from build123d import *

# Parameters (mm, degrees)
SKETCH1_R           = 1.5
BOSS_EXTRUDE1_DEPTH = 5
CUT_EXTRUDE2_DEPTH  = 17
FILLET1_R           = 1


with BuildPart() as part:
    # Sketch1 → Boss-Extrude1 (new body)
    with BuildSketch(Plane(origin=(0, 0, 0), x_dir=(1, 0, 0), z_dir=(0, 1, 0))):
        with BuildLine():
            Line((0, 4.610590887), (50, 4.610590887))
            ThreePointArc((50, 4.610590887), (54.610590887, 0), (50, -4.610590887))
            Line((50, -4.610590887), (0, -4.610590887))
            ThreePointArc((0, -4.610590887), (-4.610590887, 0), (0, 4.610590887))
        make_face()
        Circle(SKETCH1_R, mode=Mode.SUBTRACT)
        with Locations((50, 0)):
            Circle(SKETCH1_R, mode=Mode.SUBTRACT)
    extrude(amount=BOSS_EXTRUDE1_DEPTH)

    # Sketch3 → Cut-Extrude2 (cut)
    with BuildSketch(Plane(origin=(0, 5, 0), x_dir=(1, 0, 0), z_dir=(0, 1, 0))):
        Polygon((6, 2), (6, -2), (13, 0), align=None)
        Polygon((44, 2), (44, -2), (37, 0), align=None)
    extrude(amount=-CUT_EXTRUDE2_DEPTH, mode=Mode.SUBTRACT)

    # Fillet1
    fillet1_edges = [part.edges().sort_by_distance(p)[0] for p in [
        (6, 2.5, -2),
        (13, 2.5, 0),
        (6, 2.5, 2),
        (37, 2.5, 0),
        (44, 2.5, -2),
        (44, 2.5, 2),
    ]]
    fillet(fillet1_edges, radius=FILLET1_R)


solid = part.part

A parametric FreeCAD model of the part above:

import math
import FreeCAD as App
import Part
import Sketcher

V = App.Vector
Q = App.Units.Quantity


def edges_at(feature, points):
    """Names of the edges that pass closest to the given points."""
    edges = feature.Shape.Edges
    near = lambda p: min(range(len(edges)), key=lambda i: edges[i].distToShape(Part.Vertex(*p))[0])
    return sorted({f"Edge{near(p) + 1}" for p in points})

doc = App.newDocument("Part")
body = doc.addObject("PartDesign::Body", "Body")

sketch1 = body.newObject("Sketcher::SketchObject", "Sketch")
sketch1.AttachmentSupport = (doc.getObject("XZ_Plane"), [""])
sketch1.MapMode = "FlatFace"
sketch1.addGeometry([
    Part.LineSegment(V(50, -4.6, 0), V(0, -4.6, 0)),
    Part.ArcOfCircle(Part.Circle(V(0, 0, 0), V(0, 0, 1), 4.6), math.radians(90), math.radians(270)),
    Part.LineSegment(V(0, 4.6, 0), V(50, 4.6, 0)),
    Part.ArcOfCircle(Part.Circle(V(50, 0, 0), V(0, 0, 1), 4.6), math.radians(-90), math.radians(90)),
    Part.Circle(V(50, 0, 0), V(0, 0, 1), 1.5),
    Part.Circle(V(0, 0, 0), V(0, 0, 1), 1.5),
], False)
sketch1.addConstraint([
    Sketcher.Constraint("Tangent", 0, 2, 1, 2),
    Sketcher.Constraint("Tangent", 1, 1, 2, 1),
    Sketcher.Constraint("Tangent", 2, 2, 3, 2),
    Sketcher.Constraint("Tangent", 3, 1, 0, 1),
    Sketcher.Constraint("Horizontal", 0),
    Sketcher.Constraint("Horizontal", 2),
    Sketcher.Constraint("Coincident", 1, 3, -1, 1),
    Sketcher.Constraint("Coincident", 5, 3, -1, 1),
    Sketcher.Constraint("Coincident", 4, 3, 3, 3),
    Sketcher.Constraint("Equal", 4, 5),
    Sketcher.Constraint("Diameter", 4, Q("3 mm")),
    Sketcher.Constraint("DistanceX", 0, 2, 0, 1, Q("50 mm")),
    Sketcher.Constraint("Radius", 1, Q("4.610591 mm")),
])
pad1 = body.newObject("PartDesign::Pad", "Pad")
pad1.Profile = sketch1
pad1.Length = 5
pad1.Reversed = True

sketch2 = body.newObject("Sketcher::SketchObject", "Sketch001")
sketch2.AttachmentSupport = (doc.getObject("XZ_Plane"), [""])
sketch2.MapMode = "FlatFace"
sketch2.AttachmentOffset = App.Placement(V(0, 0, -5), App.Rotation())
sketch2.addGeometry([
    Part.LineSegment(V(6, -2, 0), V(6, 2, 0)),
    Part.LineSegment(V(6, 2, 0), V(13, 0, 0)),
    Part.LineSegment(V(13, 0, 0), V(6, -2, 0)),
    Part.LineSegment(V(44, 2, 0), V(44, -2, 0)),
    Part.LineSegment(V(44, -2, 0), V(37, 0, 0)),
    Part.LineSegment(V(37, 0, 0), V(44, 2, 0)),
], False)
sketch2.addConstraint([
    Sketcher.Constraint("Coincident", 0, 2, 1, 1),
    Sketcher.Constraint("Coincident", 1, 2, 2, 1),
    Sketcher.Constraint("Coincident", 2, 2, 0, 1),
    Sketcher.Constraint("Coincident", 3, 2, 4, 1),
    Sketcher.Constraint("Coincident", 4, 2, 5, 1),
    Sketcher.Constraint("Coincident", 5, 2, 3, 1),
    Sketcher.Constraint("Vertical", 0),
    Sketcher.Constraint("Vertical", 3),
    Sketcher.Constraint("PointOnObject", 1, 2, -1),
    Sketcher.Constraint("PointOnObject", 4, 2, -1),
    Sketcher.Constraint("Parallel", 1, 4),
    Sketcher.Constraint("Parallel", 2, 5),
    Sketcher.Constraint("Horizontal", 2, 2, 3, 2),
    Sketcher.Constraint("Horizontal", 0, 2, 5, 2),
    Sketcher.Constraint("DistanceY", 0, 1, 0, 2, Q("4 mm")),
    Sketcher.Constraint("DistanceX", -1, 1, 0, 2, Q("6 mm")),
    Sketcher.Constraint("DistanceX", -1, 1, 1, 2, Q("13 mm")),
    Sketcher.Constraint("DistanceX", -1, 1, 3, 2, Q("44 mm")),
])
pocket1 = body.newObject("PartDesign::Pocket", "Pocket")
pocket1.Profile = sketch2
pocket1.Length = 17
pocket1.Reversed = True
doc.recompute()

fillet = body.newObject("PartDesign::Fillet", "Fillet")
fillet.Base = (pocket1, edges_at(pocket1, [
    (6, 2.5, -2),
    (13, 2.5, 0),
    (6, 2.5, 2),
    (37, 2.5, 0),
    (44, 2.5, -2),
    (44, 2.5, 2),
]))
fillet.Radius = 1

doc.recompute()
